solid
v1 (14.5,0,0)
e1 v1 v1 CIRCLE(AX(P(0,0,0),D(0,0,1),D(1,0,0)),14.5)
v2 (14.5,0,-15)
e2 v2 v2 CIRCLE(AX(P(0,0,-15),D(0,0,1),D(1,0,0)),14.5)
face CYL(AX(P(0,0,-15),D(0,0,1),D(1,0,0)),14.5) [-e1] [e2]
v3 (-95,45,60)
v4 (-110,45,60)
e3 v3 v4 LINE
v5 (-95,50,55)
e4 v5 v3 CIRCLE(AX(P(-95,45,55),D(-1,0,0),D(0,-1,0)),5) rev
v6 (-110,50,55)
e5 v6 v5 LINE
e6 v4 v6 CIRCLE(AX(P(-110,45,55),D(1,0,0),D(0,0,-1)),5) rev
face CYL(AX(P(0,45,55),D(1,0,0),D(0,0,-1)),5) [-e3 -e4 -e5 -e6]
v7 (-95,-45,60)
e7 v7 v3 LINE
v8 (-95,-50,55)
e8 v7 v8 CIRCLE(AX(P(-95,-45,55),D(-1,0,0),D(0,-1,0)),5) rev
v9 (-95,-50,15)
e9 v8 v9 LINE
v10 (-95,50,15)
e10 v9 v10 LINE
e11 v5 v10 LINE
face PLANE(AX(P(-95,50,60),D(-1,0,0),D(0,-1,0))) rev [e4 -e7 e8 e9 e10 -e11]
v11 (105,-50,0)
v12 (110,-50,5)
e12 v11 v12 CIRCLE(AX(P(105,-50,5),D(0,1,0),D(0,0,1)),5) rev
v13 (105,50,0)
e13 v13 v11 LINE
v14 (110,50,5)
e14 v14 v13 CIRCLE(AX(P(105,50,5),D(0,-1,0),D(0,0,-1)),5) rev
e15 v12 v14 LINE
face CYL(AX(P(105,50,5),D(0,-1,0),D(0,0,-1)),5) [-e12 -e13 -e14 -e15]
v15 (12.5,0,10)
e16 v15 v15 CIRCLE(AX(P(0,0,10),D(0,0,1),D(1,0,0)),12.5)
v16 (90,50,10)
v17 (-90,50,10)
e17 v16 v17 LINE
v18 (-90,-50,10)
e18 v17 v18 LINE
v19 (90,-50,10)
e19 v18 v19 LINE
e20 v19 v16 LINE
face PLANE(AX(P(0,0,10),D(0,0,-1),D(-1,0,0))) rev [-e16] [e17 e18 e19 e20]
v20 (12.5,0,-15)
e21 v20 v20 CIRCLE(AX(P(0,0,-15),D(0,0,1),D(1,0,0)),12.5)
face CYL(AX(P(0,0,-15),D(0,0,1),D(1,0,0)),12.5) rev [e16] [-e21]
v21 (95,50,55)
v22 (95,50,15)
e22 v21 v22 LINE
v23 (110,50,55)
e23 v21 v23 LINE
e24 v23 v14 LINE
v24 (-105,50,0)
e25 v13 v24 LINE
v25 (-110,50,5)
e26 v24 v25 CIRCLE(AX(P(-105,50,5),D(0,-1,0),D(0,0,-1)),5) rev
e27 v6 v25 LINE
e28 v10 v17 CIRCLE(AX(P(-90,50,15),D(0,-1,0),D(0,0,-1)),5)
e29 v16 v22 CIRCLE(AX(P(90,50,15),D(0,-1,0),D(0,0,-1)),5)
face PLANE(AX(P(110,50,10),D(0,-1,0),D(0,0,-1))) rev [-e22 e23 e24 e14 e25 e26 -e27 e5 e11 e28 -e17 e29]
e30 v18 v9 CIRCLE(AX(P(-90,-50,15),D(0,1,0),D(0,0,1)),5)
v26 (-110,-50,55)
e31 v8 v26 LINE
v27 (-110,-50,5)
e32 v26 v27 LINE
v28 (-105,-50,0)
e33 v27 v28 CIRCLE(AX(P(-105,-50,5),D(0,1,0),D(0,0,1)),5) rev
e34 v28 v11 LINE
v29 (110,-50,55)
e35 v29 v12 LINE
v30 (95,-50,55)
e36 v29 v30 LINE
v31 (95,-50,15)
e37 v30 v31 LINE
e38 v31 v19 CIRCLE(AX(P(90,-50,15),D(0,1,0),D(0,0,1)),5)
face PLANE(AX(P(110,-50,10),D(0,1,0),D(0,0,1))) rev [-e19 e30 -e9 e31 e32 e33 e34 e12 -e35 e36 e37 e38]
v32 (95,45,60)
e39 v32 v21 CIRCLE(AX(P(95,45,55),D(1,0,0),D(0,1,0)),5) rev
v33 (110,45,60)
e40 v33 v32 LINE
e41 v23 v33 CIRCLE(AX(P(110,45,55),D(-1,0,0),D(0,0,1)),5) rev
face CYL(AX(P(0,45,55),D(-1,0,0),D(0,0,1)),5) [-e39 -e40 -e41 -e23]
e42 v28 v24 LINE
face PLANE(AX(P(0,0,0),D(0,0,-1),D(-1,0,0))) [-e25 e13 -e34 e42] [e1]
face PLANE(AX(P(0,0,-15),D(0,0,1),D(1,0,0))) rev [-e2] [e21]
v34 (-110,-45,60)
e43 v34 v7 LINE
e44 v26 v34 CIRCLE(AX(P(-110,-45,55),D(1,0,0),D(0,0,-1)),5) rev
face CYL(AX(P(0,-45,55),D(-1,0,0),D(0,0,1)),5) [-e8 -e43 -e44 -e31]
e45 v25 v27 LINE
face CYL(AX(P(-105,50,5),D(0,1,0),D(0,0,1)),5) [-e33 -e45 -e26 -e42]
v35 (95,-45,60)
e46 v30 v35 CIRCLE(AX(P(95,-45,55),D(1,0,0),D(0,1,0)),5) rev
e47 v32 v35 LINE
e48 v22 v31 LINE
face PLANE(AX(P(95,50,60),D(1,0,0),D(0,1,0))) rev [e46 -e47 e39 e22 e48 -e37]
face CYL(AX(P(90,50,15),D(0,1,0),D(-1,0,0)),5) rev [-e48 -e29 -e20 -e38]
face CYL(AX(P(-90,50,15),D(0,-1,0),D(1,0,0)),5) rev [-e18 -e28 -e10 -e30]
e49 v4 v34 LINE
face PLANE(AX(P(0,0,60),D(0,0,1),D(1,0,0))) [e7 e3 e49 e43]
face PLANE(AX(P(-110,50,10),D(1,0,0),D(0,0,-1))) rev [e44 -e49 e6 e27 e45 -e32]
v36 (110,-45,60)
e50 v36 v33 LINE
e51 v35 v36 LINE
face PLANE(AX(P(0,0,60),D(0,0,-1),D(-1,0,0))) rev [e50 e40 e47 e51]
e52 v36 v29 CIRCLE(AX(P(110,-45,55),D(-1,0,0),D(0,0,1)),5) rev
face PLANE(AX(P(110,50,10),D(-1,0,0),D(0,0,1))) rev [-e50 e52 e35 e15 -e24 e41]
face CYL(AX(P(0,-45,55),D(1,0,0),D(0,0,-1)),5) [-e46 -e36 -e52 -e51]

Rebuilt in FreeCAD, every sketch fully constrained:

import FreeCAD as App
import Part
import Sketcher
from FreeCAD import Vector
Q = App.Units.Quantity


def edges_at(feature, points):
    """Names of the edges that pass closest to the given points."""
    edges = feature.Shape.Edges
    near = lambda p: min(range(len(edges)), key=lambda i: edges[i].distToShape(Part.Vertex(*p))[0])
    return sorted({f"Edge{near(p) + 1}" for p in points})

doc = App.newDocument("Part")
body = doc.addObject("PartDesign::Body", "Body")

# Sketch on XY plane
sketch1 = body.newObject("Sketcher::SketchObject", "Sketch")
sketch1.AttachmentSupport = (doc.getObject("XY_Plane"), [""])
sketch1.MapMode = "FlatFace"
sketch1.addGeometry(Part.Circle(Vector(0, 0, 0), Vector(0, 0, 1), 14.5), False)
sketch1.addGeometry(Part.Circle(Vector(0, 0, 0), Vector(0, 0, 1), 12.5), False)
sketch1.addConstraint(Sketcher.Constraint("Coincident", 0, 3, -1, 1))
sketch1.addConstraint(Sketcher.Constraint("Coincident", 1, 3, -1, 1))
sketch1.addConstraint(Sketcher.Constraint("Diameter", 0, Q("29 mm")))
sketch1.addConstraint(Sketcher.Constraint("Diameter", 1, Q("25 mm")))
pad1 = body.newObject("PartDesign::Pad", "Pad")
pad1.Profile = sketch1
pad1.Length = 15
pad1.Reversed = True

# Sketch on XY plane
sketch2 = body.newObject("Sketcher::SketchObject", "Sketch001")
sketch2.AttachmentSupport = (doc.getObject("XY_Plane"), [""])
sketch2.MapMode = "FlatFace"
sketch2.AttachmentOffset = App.Placement(Vector(0, 0, 10), App.Rotation())
sketch2.addGeometry(Part.LineSegment(Vector(-110, 50, 0), Vector(-110, -50, 0)), False)
sketch2.addGeometry(Part.LineSegment(Vector(-110, -50, 0), Vector(110, -50, 0)), False)
sketch2.addGeometry(Part.LineSegment(Vector(110, -50, 0), Vector(110, 50, 0)), False)
sketch2.addGeometry(Part.LineSegment(Vector(110, 50, 0), Vector(-110, 50, 0)), False)
sketch2.addGeometry(Part.Circle(Vector(0, 0, 0), Vector(0, 0, 1), 12.5), False)
sketch2.addConstraint(Sketcher.Constraint("Coincident", 0, 2, 1, 1))
sketch2.addConstraint(Sketcher.Constraint("Coincident", 1, 2, 2, 1))
sketch2.addConstraint(Sketcher.Constraint("Coincident", 2, 2, 3, 1))
sketch2.addConstraint(Sketcher.Constraint("Coincident", 3, 2, 0, 1))
sketch2.addConstraint(Sketcher.Constraint("Vertical", 0))
sketch2.addConstraint(Sketcher.Constraint("Horizontal", 1))
sketch2.addConstraint(Sketcher.Constraint("Vertical", 2))
sketch2.addConstraint(Sketcher.Constraint("Horizontal", 3))
sketch2.addConstraint(Sketcher.Constraint("Coincident", 4, 3, -1, 1))
sketch2.addConstraint(Sketcher.Constraint("Symmetric", 0, 2, 2, 2, -1, 1))
sketch2.addConstraint(Sketcher.Constraint("Diameter", 4, Q("25 mm")))
sketch2.addConstraint(Sketcher.Constraint("DistanceX", 1, 1, 1, 2, Q("220 mm")))
sketch2.addConstraint(Sketcher.Constraint("DistanceY", 0, 2, 0, 1, Q("100 mm")))
pad2 = body.newObject("PartDesign::Pad", "Pad001")
pad2.Profile = sketch2
pad2.Length = 10
pad2.Reversed = True

# Sketch on XY plane
sketch3 = body.newObject("Sketcher::SketchObject", "Sketch002")
sketch3.AttachmentSupport = (doc.getObject("XY_Plane"), [""])
sketch3.MapMode = "FlatFace"
sketch3.AttachmentOffset = App.Placement(Vector(0, 0, 10), App.Rotation())
sketch3.addGeometry(Part.LineSegment(Vector(-110, 50, 0), Vector(-110, -50, 0)), False)
sketch3.addGeometry(Part.LineSegment(Vector(-110, -50, 0), Vector(-95, -50, 0)), False)
sketch3.addGeometry(Part.LineSegment(Vector(-95, -50, 0), Vector(-95, 50, 0)), False)
sketch3.addGeometry(Part.LineSegment(Vector(-95, 50, 0), Vector(-110, 50, 0)), False)
sketch3.addGeometry(Part.LineSegment(Vector(95, 50, 0), Vector(95, -50, 0)), False)
sketch3.addGeometry(Part.LineSegment(Vector(95, -50, 0), Vector(110, -50, 0)), False)
sketch3.addGeometry(Part.LineSegment(Vector(110, -50, 0), Vector(110, 50, 0)), False)
sketch3.addGeometry(Part.LineSegment(Vector(110, 50, 0), Vector(95, 50, 0)), False)
sketch3.addConstraint(Sketcher.Constraint("Coincident", 0, 2, 1, 1))
sketch3.addConstraint(Sketcher.Constraint("Coincident", 1, 2, 2, 1))
sketch3.addConstraint(Sketcher.Constraint("Coincident", 2, 2, 3, 1))
sketch3.addConstraint(Sketcher.Constraint("Coincident", 3, 2, 0, 1))
sketch3.addConstraint(Sketcher.Constraint("Coincident", 4, 2, 5, 1))
sketch3.addConstraint(Sketcher.Constraint("Coincident", 5, 2, 6, 1))
sketch3.addConstraint(Sketcher.Constraint("Coincident", 6, 2, 7, 1))
sketch3.addConstraint(Sketcher.Constraint("Coincident", 7, 2, 4, 1))
sketch3.addConstraint(Sketcher.Constraint("Vertical", 0))
sketch3.addConstraint(Sketcher.Constraint("Horizontal", 1))
sketch3.addConstraint(Sketcher.Constraint("Vertical", 2))
sketch3.addConstraint(Sketcher.Constraint("Horizontal", 3))
sketch3.addConstraint(Sketcher.Constraint("Vertical", 4))
sketch3.addConstraint(Sketcher.Constraint("Horizontal", 5))
sketch3.addConstraint(Sketcher.Constraint("Vertical", 6))
sketch3.addConstraint(Sketcher.Constraint("Horizontal", 7))
sketch3.addConstraint(Sketcher.Constraint("Symmetric", 2, 2, 4, 2, -1, 1))
sketch3.addConstraint(Sketcher.Constraint("Symmetric", 0, 2, 6, 2, -1, 1))
sketch3.addConstraint(Sketcher.Constraint("Horizontal", 1, 2, 4, 2))
sketch3.addConstraint(Sketcher.Constraint("DistanceX", 1, 1, 1, 2, Q("15 mm")))
sketch3.addConstraint(Sketcher.Constraint("DistanceY", 0, 2, 0, 1, Q("100 mm")))
sketch3.addConstraint(Sketcher.Constraint("DistanceX", 0, 2, -1, 1, Q("110 mm")))
pad3 = body.newObject("PartDesign::Pad", "Pad002")
pad3.Profile = sketch3
pad3.Length = 50
doc.recompute()

fillet = body.newObject("PartDesign::Fillet", "Fillet")
fillet.Base = (pad3, edges_at(pad3, [
    (-110, 0, 0),
    (110, 0, 0),
    (-95, 0, 10),
    (-102.5, -50, 60),
    (-102.5, 50, 60),
    (95, 0, 10),
    (102.5, 50, 60),
    (102.5, -50, 60),
]))
fillet.Radius = 5

doc.recompute()
